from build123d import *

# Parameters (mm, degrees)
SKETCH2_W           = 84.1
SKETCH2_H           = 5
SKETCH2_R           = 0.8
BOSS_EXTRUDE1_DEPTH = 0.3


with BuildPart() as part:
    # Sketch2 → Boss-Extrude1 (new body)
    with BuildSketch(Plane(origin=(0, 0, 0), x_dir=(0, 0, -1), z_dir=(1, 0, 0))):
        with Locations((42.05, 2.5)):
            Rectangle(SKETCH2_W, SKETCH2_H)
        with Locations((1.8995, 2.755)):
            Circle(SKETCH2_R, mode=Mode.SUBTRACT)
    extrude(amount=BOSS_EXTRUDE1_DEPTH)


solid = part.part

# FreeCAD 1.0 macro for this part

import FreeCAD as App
import Part
import Sketcher
from FreeCAD import Vector


def add_polygon(sketch, points):
    """Adds a closed chain of lines whose ends are joined by coincident constraints."""
    first, n = sketch.GeometryCount, len(points)
    for a, b in zip(points, points[1:] + points[:1]):
        sketch.addGeometry(Part.LineSegment(App.Vector(*a, 0), App.Vector(*b, 0)), False)
    for i in range(n):
        sketch.addConstraint(Sketcher.Constraint("Coincident", first + i, 2, first + (i + 1) % n, 1))

doc = App.newDocument("Part")
params = doc.addObject("Spreadsheet::Sheet", "Params")
for row, (alias, value) in enumerate([
    ("sketch1_diameter", "1.6 mm"),
    ("sketch1_width", "5 mm"),
    ("sketch1_height", "84.1 mm"),
    ("pad1_length", "0.3 mm"),
], start=1):
    params.set(f"A{row}", alias)
    params.set(f"B{row}", "=" + value)
    params.setAlias(f"B{row}", alias)

body = doc.addObject("PartDesign::Body", "Body")

# Sketch on YZ plane
sketch1 = body.newObject("Sketcher::SketchObject", "Sketch")
sketch1.AttachmentSupport = (doc.getObject("YZ_Plane"), [""])
sketch1.MapMode = "FlatFace"
add_polygon(sketch1, [(5, 0), (0, 0), (0, -84.1), (5, -84.1)])  # lines 0-3
sketch1.addGeometry(Part.Circle(Vector(2.755, -1.8995, 0), Vector(0, 0, 1), 0.8), False)  # 4
sketch1.addConstraint(Sketcher.Constraint("Horizontal", 0))
sketch1.addConstraint(Sketcher.Constraint("Vertical", 1))
sketch1.addConstraint(Sketcher.Constraint("Horizontal", 2))
sketch1.addConstraint(Sketcher.Constraint("Vertical", 3))
sketch1.addConstraint(Sketcher.Constraint("Coincident", 0, 2, -1, 1))
sketch1.addConstraint(Sketcher.Constraint("Diameter", 4, 1.6))
sketch1.addConstraint(Sketcher.Constraint("DistanceX", 0, 2, 0, 1, 5.0))
sketch1.addConstraint(Sketcher.Constraint("DistanceY", 1, 2, 1, 1, 84.1))
sketch1.addConstraint(Sketcher.Constraint("DistanceX", -1, 1, 4, 3, 2.755))
sketch1.addConstraint(Sketcher.Constraint("DistanceY", 4, 3, -1, 1, 1.8995))
sketch1.setExpression("Constraints[9]", "Params.sketch1_diameter")
sketch1.setExpression("Constraints[10]", "Params.sketch1_width")
sketch1.setExpression("Constraints[11]", "Params.sketch1_height")
pad1 = body.newObject("PartDesign::Pad", "Pad")
pad1.Profile = sketch1
pad1.setExpression("Length", "Params.pad1_length")

doc.recompute()
